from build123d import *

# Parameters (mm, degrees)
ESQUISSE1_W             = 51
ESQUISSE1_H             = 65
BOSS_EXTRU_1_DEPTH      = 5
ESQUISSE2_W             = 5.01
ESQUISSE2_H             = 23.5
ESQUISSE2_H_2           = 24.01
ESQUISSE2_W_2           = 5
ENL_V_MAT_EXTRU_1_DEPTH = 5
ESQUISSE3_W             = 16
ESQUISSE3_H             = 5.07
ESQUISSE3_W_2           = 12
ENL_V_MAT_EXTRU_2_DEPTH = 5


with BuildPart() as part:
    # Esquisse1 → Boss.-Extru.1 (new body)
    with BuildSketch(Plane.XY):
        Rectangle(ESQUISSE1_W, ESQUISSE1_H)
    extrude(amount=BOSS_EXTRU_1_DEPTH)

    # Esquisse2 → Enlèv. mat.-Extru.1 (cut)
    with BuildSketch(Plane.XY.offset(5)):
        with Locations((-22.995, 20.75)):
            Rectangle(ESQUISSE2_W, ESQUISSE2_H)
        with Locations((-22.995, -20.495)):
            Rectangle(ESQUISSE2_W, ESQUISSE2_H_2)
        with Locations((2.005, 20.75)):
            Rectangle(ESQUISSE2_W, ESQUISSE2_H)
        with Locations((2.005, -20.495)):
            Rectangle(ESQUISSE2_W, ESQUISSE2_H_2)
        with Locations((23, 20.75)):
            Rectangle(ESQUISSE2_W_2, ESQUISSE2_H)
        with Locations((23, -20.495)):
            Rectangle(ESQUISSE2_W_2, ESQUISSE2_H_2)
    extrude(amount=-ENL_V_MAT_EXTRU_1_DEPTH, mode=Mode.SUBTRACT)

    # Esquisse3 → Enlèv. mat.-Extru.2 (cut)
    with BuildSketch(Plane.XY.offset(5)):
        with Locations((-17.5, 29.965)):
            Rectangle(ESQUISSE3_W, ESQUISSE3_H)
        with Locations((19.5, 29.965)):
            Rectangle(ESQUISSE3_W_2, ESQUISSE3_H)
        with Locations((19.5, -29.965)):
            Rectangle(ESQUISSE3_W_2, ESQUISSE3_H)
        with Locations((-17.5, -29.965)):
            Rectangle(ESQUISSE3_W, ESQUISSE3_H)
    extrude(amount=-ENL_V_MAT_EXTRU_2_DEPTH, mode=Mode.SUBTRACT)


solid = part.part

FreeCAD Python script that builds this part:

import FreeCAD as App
import Part
import Sketcher

V = App.Vector
Q = App.Units.Quantity


def add_polygon(sketch, points):
    """Adds a closed chain of lines whose ends are joined by coincident constraints."""
    first, n = sketch.GeometryCount, len(points)
    for a, b in zip(points, points[1:] + points[:1]):
        sketch.addGeometry(Part.LineSegment(App.Vector(*a, 0), App.Vector(*b, 0)), False)
    for i in range(n):
        sketch.addConstraint(Sketcher.Constraint("Coincident", first + i, 2, first + (i + 1) % n, 1))

doc = App.newDocument("Part")
body = doc.addObject("PartDesign::Body", "Body")

# Sketch on XY plane
sketch1 = body.newObject("Sketcher::SketchObject", "Sketch")
sketch1.AttachmentSupport = (doc.getObject("XY_Plane"), [""])
sketch1.MapMode = "FlatFace"
add_polygon(sketch1, [(-25.5, 32.5), (-25.5, -32.5), (25.5, -32.5), (25.5, 32.5)])  # lines 0-3
sketch1.addConstraint(Sketcher.Constraint("Vertical", 0))
sketch1.addConstraint(Sketcher.Constraint("Horizontal", 1))
sketch1.addConstraint(Sketcher.Constraint("Vertical", 2))
sketch1.addConstraint(Sketcher.Constraint("Horizontal", 3))
sketch1.addConstraint(Sketcher.Constraint("Symmetric", 0, 2, 2, 2, -1, 1))
sketch1.addConstraint(Sketcher.Constraint("DistanceX", 1, 1, 1, 2, Q("51 mm")))
sketch1.addConstraint(Sketcher.Constraint("DistanceY", 0, 2, 0, 1, Q("65 mm")))
pad1 = body.newObject("PartDesign::Pad", "Pad")
pad1.Profile = sketch1
pad1.Length = 5

# Sketch on XY plane
sketch2 = body.newObject("Sketcher::SketchObject", "Sketch001")
sketch2.AttachmentSupport = (doc.getObject("XY_Plane"), [""])
sketch2.MapMode = "FlatFace"
sketch2.AttachmentOffset = App.Placement(V(0, 0, 5), App.Rotation())
add_polygon(sketch2, [(-25.5, 32.5), (-25.5, 9), (-20.49, 9), (-20.49, 32.5)])  # lines 0-3
add_polygon(sketch2, [(-25.5, -8.49), (-25.5, -32.5), (-20.49, -32.5), (-20.49, -8.49)])  # lines 4-7
add_polygon(sketch2, [(-0.5, 32.5), (-0.5, 9), (4.51, 9), (4.51, 32.5)])  # lines 8-11
add_polygon(sketch2, [(-0.5, -8.49), (-0.5, -32.5), (4.51, -32.5), (4.51, -8.49)])  # lines 12-15
add_polygon(sketch2, [(20.5, 32.5), (20.5, 9), (25.5, 9), (25.5, 32.5)])  # lines 16-19
add_polygon(sketch2, [(20.5, -8.49), (20.5, -32.5), (25.5, -32.5), (25.5, -8.49)])  # lines 20-23
sketch2.addConstraint(Sketcher.Constraint("Vertical", 0))
sketch2.addConstraint(Sketcher.Constraint("Horizontal", 1))
sketch2.addConstraint(Sketcher.Constraint("Vertical", 2))
sketch2.addConstraint(Sketcher.Constraint("Horizontal", 3))
sketch2.addConstraint(Sketcher.Constraint("Vertical", 4))
sketch2.addConstraint(Sketcher.Constraint("Horizontal", 5))
sketch2.addConstraint(Sketcher.Constraint("Vertical", 6))
sketch2.addConstraint(Sketcher.Constraint("Horizontal", 7))
sketch2.addConstraint(Sketcher.Constraint("Vertical", 8))
sketch2.addConstraint(Sketcher.Constraint("Horizontal", 9))
sketch2.addConstraint(Sketcher.Constraint("Vertical", 10))
sketch2.addConstraint(Sketcher.Constraint("Horizontal", 11))
sketch2.addConstraint(Sketcher.Constraint("Vertical", 12))
sketch2.addConstraint(Sketcher.Constraint("Horizontal", 13))
sketch2.addConstraint(Sketcher.Constraint("Vertical", 14))
sketch2.addConstraint(Sketcher.Constraint("Horizontal", 15))
sketch2.addConstraint(Sketcher.Constraint("Vertical", 16))
sketch2.addConstraint(Sketcher.Constraint("Horizontal", 17))
sketch2.addConstraint(Sketcher.Constraint("Vertical", 18))
sketch2.addConstraint(Sketcher.Constraint("Horizontal", 19))
sketch2.addConstraint(Sketcher.Constraint("Vertical", 20))
sketch2.addConstraint(Sketcher.Constraint("Horizontal", 21))
sketch2.addConstraint(Sketcher.Constraint("Vertical", 22))
sketch2.addConstraint(Sketcher.Constraint("Horizontal", 23))
sketch2.addConstraint(Sketcher.Constraint("Symmetric", 4, 2, 18, 2, -1, 1))
sketch2.addConstraint(Sketcher.Constraint("Symmetric", 3, 2, 21, 2, -1, 1))
sketch2.addConstraint(Sketcher.Constraint("Symmetric", 0, 2, 17, 2, -2))
sketch2.addConstraint(Sketcher.Constraint("Symmetric", 2, 2, 5, 2, -1))
sketch2.addConstraint(Sketcher.Constraint("Symmetric", 11, 2, 12, 2, -1))
sketch2.addConstraint(Sketcher.Constraint("Horizontal", 1, 2, 8, 2))
sketch2.addConstraint(Sketcher.Constraint("Horizontal", 3, 2, 10, 2))
sketch2.addConstraint(Sketcher.Constraint("Horizontal", 7, 2, 14, 2))
sketch2.addConstraint(Sketcher.Constraint("Horizontal", 15, 2, 22, 2))
sketch2.addConstraint(Sketcher.Constraint("Vertical", 10, 2, 13, 2))
sketch2.addConstraint(Sketcher.Constraint("Vertical", 19, 2, 20, 2))
sketch2.addConstraint(Sketcher.Constraint("Equal", 7, 9))
sketch2.addConstraint(Sketcher.Constraint("DistanceX", 17, 1, 17, 2, Q("5 mm")))
sketch2.addConstraint(Sketcher.Constraint("DistanceY", 0, 2, 0, 1, Q("23.5 mm")))
sketch2.addConstraint(Sketcher.Constraint("DistanceY", -1, 1, 0, 2, Q("9 mm")))
sketch2.addConstraint(Sketcher.Constraint("DistanceX", 0, 2, 8, 2, Q("25 mm")))
sketch2.addConstraint(Sketcher.Constraint("DistanceX", 8, 2, 16, 2, Q("21 mm")))
sketch2.addConstraint(Sketcher.Constraint("DistanceX", 1, 1, 1, 2, Q("5.01 mm")))
sketch2.addConstraint(Sketcher.Constraint("DistanceY", 4, 2, 4, 1, Q("24.01 mm")))
pocket1 = body.newObject("PartDesign::Pocket", "Pocket")
pocket1.Profile = sketch2
pocket1.Length = 5

# Sketch on XY plane
sketch3 = body.newObject("Sketcher::SketchObject", "Sketch002")
sketch3.AttachmentSupport = (doc.getObject("XY_Plane"), [""])
sketch3.MapMode = "FlatFace"
sketch3.AttachmentOffset = App.Placement(V(0, 0, 5), App.Rotation())
add_polygon(sketch3, [(-25.5, 32.5), (-25.5, 27.43), (-9.5, 27.43), (-9.5, 32.5)])  # lines 0-3
add_polygon(sketch3, [(13.5, 32.5), (13.5, 27.43), (25.5, 27.43), (25.5, 32.5)])  # lines 4-7
add_polygon(sketch3, [(13.5, -27.43), (13.5, -32.5), (25.5, -32.5), (25.5, -27.43)])  # lines 8-11
add_polygon(sketch3, [(-25.5, -27.43), (-25.5, -32.5), (-9.5, -32.5), (-9.5, -27.43)])  # lines 12-15
sketch3.addConstraint(Sketcher.Constraint("Vertical", 0))
sketch3.addConstraint(Sketcher.Constraint("Horizontal", 1))
sketch3.addConstraint(Sketcher.Constraint("Vertical", 2))
sketch3.addConstraint(Sketcher.Constraint("Horizontal", 3))
sketch3.addConstraint(Sketcher.Constraint("Vertical", 4))
sketch3.addConstraint(Sketcher.Constraint("Horizontal", 5))
sketch3.addConstraint(Sketcher.Constraint("Vertical", 6))
sketch3.addConstraint(Sketcher.Constraint("Horizontal", 7))
sketch3.addConstraint(Sketcher.Constraint("Vertical", 8))
sketch3.addConstraint(Sketcher.Constraint("Horizontal", 9))
sketch3.addConstraint(Sketcher.Constraint("Vertical", 10))
sketch3.addConstraint(Sketcher.Constraint("Horizontal", 11))
sketch3.addConstraint(Sketcher.Constraint("Vertical", 12))
sketch3.addConstraint(Sketcher.Constraint("Horizontal", 13))
sketch3.addConstraint(Sketcher.Constraint("Vertical", 14))
sketch3.addConstraint(Sketcher.Constraint("Horizontal", 15))
sketch3.addConstraint(Sketcher.Constraint("Symmetric", 3, 2, 9, 2, -1, 1))
sketch3.addConstraint(Sketcher.Constraint("Symmetric", 6, 2, 12, 2, -1, 1))
sketch3.addConstraint(Sketcher.Constraint("Symmetric", 0, 2, 5, 2, -2))
sketch3.addConstraint(Sketcher.Constraint("Symmetric", 7, 2, 8, 2, -1))
sketch3.addConstraint(Sketcher.Constraint("Symmetric", 1, 2, 14, 2, -1))
sketch3.addConstraint(Sketcher.Constraint("Horizontal", 11, 2, 14, 2))
sketch3.addConstraint(Sketcher.Constraint("DistanceX", 1, 1, 1, 2, Q("16 mm")))
sketch3.addConstraint(Sketcher.Constraint("DistanceX", 5, 1, 5, 2, Q("12 mm")))
sketch3.addConstraint(Sketcher.Constraint("DistanceX", 1, 2, 4, 2, Q("23 mm")))
sketch3.addConstraint(Sketcher.Constraint("DistanceY", 8, 2, 7, 2, Q("65 mm")))
sketch3.addConstraint(Sketcher.Constraint("DistanceY", 0, 2, 0, 1, Q("5.07 mm")))
pocket2 = body.newObject("PartDesign::Pocket", "Pocket001")
pocket2.Profile = sketch3
pocket2.Length = 5

doc.recompute()
